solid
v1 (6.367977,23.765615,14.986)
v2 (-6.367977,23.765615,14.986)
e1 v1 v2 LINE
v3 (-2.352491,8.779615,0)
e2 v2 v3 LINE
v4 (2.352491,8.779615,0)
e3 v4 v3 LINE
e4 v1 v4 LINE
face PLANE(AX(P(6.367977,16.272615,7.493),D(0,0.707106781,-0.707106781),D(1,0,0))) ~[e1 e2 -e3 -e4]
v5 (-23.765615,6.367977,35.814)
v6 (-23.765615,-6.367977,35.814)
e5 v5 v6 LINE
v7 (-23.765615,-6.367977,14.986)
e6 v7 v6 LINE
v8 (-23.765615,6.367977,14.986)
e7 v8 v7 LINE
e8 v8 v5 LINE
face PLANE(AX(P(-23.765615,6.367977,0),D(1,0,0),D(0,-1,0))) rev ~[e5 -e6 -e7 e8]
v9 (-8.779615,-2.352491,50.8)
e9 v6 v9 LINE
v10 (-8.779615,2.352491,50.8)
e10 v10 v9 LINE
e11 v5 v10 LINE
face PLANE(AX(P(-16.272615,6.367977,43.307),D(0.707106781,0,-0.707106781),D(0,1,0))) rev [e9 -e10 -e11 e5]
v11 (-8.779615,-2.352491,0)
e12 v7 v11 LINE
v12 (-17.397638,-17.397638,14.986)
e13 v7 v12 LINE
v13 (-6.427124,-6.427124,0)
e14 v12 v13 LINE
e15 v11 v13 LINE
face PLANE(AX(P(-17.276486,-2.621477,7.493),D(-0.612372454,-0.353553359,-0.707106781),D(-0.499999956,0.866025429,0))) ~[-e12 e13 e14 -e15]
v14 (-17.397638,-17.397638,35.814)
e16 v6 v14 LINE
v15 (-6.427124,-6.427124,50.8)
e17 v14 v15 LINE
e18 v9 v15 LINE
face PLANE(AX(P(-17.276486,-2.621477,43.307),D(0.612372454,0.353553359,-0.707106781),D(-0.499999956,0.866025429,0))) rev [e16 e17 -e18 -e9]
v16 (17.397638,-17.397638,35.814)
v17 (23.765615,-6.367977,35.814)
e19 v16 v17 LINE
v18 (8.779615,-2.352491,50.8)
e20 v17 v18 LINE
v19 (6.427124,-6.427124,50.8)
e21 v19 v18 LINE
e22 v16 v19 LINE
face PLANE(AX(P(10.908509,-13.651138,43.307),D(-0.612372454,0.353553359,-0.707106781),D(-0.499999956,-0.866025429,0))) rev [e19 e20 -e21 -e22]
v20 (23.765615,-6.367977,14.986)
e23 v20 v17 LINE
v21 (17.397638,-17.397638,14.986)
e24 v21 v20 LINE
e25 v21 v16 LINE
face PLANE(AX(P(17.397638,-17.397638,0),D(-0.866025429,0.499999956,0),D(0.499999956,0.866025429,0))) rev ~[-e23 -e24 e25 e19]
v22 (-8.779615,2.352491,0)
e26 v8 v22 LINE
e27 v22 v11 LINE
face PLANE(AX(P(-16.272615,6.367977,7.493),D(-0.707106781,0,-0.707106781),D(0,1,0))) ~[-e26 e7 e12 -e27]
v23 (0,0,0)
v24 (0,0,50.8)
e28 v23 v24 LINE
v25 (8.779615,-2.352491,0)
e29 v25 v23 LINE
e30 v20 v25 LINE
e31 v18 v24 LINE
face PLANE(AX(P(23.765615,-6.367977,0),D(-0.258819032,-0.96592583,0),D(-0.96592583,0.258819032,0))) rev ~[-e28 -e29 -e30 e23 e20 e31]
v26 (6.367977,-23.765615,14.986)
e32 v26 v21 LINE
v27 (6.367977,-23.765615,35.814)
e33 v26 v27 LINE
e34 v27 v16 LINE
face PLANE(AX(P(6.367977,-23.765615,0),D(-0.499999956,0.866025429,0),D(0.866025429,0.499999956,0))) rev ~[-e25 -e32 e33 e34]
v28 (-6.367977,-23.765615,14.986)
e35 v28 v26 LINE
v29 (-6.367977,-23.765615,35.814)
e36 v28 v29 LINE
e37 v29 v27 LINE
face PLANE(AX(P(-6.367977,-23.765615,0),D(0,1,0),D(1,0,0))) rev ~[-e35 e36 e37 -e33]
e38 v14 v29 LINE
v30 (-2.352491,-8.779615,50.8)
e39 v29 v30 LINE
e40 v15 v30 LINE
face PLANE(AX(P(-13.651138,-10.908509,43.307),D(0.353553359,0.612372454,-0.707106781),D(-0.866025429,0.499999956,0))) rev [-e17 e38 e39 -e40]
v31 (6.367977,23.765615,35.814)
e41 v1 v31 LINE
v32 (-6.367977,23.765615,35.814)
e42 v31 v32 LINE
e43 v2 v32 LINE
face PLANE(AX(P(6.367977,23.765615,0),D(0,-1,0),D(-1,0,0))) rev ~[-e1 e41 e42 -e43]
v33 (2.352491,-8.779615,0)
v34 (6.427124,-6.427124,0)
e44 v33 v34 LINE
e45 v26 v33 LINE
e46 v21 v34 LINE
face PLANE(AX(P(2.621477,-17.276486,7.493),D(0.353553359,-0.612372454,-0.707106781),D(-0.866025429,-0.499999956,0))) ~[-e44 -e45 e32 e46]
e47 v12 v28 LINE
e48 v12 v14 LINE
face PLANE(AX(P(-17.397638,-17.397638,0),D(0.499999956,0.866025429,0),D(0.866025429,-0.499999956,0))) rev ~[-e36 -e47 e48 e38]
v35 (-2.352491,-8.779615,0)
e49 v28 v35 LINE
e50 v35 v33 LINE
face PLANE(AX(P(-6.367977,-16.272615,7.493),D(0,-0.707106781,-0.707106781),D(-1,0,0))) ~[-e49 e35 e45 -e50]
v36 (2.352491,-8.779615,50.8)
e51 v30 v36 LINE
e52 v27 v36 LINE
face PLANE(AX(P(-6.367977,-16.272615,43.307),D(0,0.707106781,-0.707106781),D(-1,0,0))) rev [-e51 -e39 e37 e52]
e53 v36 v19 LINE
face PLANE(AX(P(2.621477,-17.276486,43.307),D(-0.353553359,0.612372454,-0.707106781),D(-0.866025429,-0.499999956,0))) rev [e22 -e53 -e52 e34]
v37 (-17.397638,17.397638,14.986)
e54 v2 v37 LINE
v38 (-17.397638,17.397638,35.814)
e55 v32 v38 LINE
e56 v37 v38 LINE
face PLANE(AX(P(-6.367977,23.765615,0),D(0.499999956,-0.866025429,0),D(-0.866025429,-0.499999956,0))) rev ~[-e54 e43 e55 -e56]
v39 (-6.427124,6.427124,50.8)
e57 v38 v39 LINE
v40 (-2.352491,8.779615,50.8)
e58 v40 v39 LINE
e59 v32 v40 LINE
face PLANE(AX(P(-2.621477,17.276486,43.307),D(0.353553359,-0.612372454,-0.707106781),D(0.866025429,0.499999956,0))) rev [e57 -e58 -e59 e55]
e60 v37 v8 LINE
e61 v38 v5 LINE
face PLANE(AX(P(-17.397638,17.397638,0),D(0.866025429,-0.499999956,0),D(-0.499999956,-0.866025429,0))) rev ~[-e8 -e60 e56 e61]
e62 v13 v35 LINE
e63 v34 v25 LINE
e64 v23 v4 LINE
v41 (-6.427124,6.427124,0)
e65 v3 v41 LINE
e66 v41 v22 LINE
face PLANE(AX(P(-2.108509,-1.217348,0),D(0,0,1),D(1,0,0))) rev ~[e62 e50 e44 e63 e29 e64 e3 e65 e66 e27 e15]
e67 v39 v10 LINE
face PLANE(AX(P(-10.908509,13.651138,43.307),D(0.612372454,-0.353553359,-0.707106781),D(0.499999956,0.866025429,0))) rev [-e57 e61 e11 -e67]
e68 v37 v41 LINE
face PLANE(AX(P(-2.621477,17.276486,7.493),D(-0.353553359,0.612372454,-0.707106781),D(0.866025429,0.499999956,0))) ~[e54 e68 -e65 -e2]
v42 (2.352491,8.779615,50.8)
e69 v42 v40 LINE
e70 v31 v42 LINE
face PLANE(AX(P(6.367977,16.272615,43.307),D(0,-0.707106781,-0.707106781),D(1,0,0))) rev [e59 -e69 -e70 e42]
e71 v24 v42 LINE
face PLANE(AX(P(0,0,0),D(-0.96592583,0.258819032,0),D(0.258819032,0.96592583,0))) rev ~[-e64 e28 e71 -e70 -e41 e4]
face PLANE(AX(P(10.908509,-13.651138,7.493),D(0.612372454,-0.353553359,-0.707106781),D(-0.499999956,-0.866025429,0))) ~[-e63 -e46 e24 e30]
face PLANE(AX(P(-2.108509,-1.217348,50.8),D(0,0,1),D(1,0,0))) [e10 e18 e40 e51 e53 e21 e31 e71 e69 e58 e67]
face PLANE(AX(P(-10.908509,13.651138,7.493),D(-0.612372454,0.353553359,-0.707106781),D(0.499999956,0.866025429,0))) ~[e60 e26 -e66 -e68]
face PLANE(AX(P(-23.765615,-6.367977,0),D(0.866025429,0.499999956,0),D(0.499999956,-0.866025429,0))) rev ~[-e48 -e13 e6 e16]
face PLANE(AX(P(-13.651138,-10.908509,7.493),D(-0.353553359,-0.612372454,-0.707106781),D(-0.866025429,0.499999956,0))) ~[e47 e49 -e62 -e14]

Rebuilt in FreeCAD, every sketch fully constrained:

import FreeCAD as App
import Part
import Sketcher
from FreeCAD import Vector
Q = App.Units.Quantity


def edges_at(feature, points):
    """Names of the edges that pass closest to the given points."""
    edges = feature.Shape.Edges
    near = lambda p: min(range(len(edges)), key=lambda i: edges[i].distToShape(Part.Vertex(*p))[0])
    return sorted({f"Edge{near(p) + 1}" for p in points})


def add_polygon(sketch, points):
    """Adds a closed chain of lines whose ends are joined by coincident constraints."""
    first, n = sketch.GeometryCount, len(points)
    for a, b in zip(points, points[1:] + points[:1]):
        sketch.addGeometry(Part.LineSegment(App.Vector(*a, 0), App.Vector(*b, 0)), False)
    for i in range(n):
        sketch.addConstraint(Sketcher.Constraint("Coincident", first + i, 2, first + (i + 1) % n, 1))

doc = App.newDocument("Part")
body = doc.addObject("PartDesign::Body", "Body")

# Sketch on XY plane
sketch1 = body.newObject("Sketcher::SketchObject", "Sketch")
sketch1.AttachmentSupport = (doc.getObject("XY_Plane"), [""])
sketch1.MapMode = "FlatFace"
add_polygon(sketch1, [(-6, -24), (6, -24), (17, -17), (24, -6), (0, 0), (6, 24), (-6, 24), (-17, 17), (-24, 6), (-24, -6), (-17, -17)])  # lines 0-10
sketch1.addConstraint(Sketcher.Constraint("Horizontal", 0))
sketch1.addConstraint(Sketcher.Constraint("Horizontal", 5))
sketch1.addConstraint(Sketcher.Constraint("Vertical", 8))
sketch1.addConstraint(Sketcher.Constraint("Coincident", 3, 2, -1, 1))
sketch1.addConstraint(Sketcher.Constraint("Symmetric", 0, 2, 5, 2, -1, 1))
sketch1.addConstraint(Sketcher.Constraint("Symmetric", 1, 2, 6, 2, -1, 1))
sketch1.addConstraint(Sketcher.Constraint("Symmetric", 2, 2, 7, 2, -1, 1))
sketch1.addConstraint(Sketcher.Constraint("Symmetric", 1, 2, 9, 2, -2))
sketch1.addConstraint(Sketcher.Constraint("Perpendicular", 3, 4))
sketch1.addConstraint(Sketcher.Constraint("Perpendicular", 6, 9))
sketch1.addConstraint(Sketcher.Constraint("Perpendicular", 7, 10))
sketch1.addConstraint(Sketcher.Constraint("Horizontal", 2, 2, 8, 2))
sketch1.addConstraint(Sketcher.Constraint("Vertical", 0, 2, 4, 2))
sketch1.addConstraint(Sketcher.Constraint("Equal", 5, 8))
sketch1.addConstraint(Sketcher.Constraint("Angle", 1, Q("29.999997 deg")))
sketch1.addConstraint(Sketcher.Constraint("Angle", 3, Q("165.000001 deg")))
sketch1.addConstraint(Sketcher.Constraint("DistanceX", 0, 1, 0, 2, 12.735954))
pad1 = body.newObject("PartDesign::Pad", "Pad")
pad1.Profile = sketch1
pad1.Length = Q("2 in")
doc.recompute()

chamfer = body.newObject("PartDesign::Chamfer", "Chamfer")
chamfer.Base = (pad1, edges_at(pad1, [
    (0, 23.766, 50.8),
    (-11.883, 20.582, 50.8),
    (-20.582, 11.883, 50.8),
    (-23.766, 0, 50.8),
    (-20.582, -11.883, 50.8),
    (-11.883, -20.582, 50.8),
    (0, 23.766, 0),
    (-11.883, 20.582, 0),
    (-20.582, 11.883, 0),
    (-23.766, 0, 0),
    (-20.582, -11.883, 0),
    (-11.883, -20.582, 0),
    (20.582, -11.883, 0),
    (11.883, -20.582, 0),
    (0, -23.766, 0),
    (20.582, -11.883, 50.8),
    (11.883, -20.582, 50.8),
    (0, -23.766, 50.8),
]))
chamfer.Size = Q("0.59 in")

doc.recompute()
